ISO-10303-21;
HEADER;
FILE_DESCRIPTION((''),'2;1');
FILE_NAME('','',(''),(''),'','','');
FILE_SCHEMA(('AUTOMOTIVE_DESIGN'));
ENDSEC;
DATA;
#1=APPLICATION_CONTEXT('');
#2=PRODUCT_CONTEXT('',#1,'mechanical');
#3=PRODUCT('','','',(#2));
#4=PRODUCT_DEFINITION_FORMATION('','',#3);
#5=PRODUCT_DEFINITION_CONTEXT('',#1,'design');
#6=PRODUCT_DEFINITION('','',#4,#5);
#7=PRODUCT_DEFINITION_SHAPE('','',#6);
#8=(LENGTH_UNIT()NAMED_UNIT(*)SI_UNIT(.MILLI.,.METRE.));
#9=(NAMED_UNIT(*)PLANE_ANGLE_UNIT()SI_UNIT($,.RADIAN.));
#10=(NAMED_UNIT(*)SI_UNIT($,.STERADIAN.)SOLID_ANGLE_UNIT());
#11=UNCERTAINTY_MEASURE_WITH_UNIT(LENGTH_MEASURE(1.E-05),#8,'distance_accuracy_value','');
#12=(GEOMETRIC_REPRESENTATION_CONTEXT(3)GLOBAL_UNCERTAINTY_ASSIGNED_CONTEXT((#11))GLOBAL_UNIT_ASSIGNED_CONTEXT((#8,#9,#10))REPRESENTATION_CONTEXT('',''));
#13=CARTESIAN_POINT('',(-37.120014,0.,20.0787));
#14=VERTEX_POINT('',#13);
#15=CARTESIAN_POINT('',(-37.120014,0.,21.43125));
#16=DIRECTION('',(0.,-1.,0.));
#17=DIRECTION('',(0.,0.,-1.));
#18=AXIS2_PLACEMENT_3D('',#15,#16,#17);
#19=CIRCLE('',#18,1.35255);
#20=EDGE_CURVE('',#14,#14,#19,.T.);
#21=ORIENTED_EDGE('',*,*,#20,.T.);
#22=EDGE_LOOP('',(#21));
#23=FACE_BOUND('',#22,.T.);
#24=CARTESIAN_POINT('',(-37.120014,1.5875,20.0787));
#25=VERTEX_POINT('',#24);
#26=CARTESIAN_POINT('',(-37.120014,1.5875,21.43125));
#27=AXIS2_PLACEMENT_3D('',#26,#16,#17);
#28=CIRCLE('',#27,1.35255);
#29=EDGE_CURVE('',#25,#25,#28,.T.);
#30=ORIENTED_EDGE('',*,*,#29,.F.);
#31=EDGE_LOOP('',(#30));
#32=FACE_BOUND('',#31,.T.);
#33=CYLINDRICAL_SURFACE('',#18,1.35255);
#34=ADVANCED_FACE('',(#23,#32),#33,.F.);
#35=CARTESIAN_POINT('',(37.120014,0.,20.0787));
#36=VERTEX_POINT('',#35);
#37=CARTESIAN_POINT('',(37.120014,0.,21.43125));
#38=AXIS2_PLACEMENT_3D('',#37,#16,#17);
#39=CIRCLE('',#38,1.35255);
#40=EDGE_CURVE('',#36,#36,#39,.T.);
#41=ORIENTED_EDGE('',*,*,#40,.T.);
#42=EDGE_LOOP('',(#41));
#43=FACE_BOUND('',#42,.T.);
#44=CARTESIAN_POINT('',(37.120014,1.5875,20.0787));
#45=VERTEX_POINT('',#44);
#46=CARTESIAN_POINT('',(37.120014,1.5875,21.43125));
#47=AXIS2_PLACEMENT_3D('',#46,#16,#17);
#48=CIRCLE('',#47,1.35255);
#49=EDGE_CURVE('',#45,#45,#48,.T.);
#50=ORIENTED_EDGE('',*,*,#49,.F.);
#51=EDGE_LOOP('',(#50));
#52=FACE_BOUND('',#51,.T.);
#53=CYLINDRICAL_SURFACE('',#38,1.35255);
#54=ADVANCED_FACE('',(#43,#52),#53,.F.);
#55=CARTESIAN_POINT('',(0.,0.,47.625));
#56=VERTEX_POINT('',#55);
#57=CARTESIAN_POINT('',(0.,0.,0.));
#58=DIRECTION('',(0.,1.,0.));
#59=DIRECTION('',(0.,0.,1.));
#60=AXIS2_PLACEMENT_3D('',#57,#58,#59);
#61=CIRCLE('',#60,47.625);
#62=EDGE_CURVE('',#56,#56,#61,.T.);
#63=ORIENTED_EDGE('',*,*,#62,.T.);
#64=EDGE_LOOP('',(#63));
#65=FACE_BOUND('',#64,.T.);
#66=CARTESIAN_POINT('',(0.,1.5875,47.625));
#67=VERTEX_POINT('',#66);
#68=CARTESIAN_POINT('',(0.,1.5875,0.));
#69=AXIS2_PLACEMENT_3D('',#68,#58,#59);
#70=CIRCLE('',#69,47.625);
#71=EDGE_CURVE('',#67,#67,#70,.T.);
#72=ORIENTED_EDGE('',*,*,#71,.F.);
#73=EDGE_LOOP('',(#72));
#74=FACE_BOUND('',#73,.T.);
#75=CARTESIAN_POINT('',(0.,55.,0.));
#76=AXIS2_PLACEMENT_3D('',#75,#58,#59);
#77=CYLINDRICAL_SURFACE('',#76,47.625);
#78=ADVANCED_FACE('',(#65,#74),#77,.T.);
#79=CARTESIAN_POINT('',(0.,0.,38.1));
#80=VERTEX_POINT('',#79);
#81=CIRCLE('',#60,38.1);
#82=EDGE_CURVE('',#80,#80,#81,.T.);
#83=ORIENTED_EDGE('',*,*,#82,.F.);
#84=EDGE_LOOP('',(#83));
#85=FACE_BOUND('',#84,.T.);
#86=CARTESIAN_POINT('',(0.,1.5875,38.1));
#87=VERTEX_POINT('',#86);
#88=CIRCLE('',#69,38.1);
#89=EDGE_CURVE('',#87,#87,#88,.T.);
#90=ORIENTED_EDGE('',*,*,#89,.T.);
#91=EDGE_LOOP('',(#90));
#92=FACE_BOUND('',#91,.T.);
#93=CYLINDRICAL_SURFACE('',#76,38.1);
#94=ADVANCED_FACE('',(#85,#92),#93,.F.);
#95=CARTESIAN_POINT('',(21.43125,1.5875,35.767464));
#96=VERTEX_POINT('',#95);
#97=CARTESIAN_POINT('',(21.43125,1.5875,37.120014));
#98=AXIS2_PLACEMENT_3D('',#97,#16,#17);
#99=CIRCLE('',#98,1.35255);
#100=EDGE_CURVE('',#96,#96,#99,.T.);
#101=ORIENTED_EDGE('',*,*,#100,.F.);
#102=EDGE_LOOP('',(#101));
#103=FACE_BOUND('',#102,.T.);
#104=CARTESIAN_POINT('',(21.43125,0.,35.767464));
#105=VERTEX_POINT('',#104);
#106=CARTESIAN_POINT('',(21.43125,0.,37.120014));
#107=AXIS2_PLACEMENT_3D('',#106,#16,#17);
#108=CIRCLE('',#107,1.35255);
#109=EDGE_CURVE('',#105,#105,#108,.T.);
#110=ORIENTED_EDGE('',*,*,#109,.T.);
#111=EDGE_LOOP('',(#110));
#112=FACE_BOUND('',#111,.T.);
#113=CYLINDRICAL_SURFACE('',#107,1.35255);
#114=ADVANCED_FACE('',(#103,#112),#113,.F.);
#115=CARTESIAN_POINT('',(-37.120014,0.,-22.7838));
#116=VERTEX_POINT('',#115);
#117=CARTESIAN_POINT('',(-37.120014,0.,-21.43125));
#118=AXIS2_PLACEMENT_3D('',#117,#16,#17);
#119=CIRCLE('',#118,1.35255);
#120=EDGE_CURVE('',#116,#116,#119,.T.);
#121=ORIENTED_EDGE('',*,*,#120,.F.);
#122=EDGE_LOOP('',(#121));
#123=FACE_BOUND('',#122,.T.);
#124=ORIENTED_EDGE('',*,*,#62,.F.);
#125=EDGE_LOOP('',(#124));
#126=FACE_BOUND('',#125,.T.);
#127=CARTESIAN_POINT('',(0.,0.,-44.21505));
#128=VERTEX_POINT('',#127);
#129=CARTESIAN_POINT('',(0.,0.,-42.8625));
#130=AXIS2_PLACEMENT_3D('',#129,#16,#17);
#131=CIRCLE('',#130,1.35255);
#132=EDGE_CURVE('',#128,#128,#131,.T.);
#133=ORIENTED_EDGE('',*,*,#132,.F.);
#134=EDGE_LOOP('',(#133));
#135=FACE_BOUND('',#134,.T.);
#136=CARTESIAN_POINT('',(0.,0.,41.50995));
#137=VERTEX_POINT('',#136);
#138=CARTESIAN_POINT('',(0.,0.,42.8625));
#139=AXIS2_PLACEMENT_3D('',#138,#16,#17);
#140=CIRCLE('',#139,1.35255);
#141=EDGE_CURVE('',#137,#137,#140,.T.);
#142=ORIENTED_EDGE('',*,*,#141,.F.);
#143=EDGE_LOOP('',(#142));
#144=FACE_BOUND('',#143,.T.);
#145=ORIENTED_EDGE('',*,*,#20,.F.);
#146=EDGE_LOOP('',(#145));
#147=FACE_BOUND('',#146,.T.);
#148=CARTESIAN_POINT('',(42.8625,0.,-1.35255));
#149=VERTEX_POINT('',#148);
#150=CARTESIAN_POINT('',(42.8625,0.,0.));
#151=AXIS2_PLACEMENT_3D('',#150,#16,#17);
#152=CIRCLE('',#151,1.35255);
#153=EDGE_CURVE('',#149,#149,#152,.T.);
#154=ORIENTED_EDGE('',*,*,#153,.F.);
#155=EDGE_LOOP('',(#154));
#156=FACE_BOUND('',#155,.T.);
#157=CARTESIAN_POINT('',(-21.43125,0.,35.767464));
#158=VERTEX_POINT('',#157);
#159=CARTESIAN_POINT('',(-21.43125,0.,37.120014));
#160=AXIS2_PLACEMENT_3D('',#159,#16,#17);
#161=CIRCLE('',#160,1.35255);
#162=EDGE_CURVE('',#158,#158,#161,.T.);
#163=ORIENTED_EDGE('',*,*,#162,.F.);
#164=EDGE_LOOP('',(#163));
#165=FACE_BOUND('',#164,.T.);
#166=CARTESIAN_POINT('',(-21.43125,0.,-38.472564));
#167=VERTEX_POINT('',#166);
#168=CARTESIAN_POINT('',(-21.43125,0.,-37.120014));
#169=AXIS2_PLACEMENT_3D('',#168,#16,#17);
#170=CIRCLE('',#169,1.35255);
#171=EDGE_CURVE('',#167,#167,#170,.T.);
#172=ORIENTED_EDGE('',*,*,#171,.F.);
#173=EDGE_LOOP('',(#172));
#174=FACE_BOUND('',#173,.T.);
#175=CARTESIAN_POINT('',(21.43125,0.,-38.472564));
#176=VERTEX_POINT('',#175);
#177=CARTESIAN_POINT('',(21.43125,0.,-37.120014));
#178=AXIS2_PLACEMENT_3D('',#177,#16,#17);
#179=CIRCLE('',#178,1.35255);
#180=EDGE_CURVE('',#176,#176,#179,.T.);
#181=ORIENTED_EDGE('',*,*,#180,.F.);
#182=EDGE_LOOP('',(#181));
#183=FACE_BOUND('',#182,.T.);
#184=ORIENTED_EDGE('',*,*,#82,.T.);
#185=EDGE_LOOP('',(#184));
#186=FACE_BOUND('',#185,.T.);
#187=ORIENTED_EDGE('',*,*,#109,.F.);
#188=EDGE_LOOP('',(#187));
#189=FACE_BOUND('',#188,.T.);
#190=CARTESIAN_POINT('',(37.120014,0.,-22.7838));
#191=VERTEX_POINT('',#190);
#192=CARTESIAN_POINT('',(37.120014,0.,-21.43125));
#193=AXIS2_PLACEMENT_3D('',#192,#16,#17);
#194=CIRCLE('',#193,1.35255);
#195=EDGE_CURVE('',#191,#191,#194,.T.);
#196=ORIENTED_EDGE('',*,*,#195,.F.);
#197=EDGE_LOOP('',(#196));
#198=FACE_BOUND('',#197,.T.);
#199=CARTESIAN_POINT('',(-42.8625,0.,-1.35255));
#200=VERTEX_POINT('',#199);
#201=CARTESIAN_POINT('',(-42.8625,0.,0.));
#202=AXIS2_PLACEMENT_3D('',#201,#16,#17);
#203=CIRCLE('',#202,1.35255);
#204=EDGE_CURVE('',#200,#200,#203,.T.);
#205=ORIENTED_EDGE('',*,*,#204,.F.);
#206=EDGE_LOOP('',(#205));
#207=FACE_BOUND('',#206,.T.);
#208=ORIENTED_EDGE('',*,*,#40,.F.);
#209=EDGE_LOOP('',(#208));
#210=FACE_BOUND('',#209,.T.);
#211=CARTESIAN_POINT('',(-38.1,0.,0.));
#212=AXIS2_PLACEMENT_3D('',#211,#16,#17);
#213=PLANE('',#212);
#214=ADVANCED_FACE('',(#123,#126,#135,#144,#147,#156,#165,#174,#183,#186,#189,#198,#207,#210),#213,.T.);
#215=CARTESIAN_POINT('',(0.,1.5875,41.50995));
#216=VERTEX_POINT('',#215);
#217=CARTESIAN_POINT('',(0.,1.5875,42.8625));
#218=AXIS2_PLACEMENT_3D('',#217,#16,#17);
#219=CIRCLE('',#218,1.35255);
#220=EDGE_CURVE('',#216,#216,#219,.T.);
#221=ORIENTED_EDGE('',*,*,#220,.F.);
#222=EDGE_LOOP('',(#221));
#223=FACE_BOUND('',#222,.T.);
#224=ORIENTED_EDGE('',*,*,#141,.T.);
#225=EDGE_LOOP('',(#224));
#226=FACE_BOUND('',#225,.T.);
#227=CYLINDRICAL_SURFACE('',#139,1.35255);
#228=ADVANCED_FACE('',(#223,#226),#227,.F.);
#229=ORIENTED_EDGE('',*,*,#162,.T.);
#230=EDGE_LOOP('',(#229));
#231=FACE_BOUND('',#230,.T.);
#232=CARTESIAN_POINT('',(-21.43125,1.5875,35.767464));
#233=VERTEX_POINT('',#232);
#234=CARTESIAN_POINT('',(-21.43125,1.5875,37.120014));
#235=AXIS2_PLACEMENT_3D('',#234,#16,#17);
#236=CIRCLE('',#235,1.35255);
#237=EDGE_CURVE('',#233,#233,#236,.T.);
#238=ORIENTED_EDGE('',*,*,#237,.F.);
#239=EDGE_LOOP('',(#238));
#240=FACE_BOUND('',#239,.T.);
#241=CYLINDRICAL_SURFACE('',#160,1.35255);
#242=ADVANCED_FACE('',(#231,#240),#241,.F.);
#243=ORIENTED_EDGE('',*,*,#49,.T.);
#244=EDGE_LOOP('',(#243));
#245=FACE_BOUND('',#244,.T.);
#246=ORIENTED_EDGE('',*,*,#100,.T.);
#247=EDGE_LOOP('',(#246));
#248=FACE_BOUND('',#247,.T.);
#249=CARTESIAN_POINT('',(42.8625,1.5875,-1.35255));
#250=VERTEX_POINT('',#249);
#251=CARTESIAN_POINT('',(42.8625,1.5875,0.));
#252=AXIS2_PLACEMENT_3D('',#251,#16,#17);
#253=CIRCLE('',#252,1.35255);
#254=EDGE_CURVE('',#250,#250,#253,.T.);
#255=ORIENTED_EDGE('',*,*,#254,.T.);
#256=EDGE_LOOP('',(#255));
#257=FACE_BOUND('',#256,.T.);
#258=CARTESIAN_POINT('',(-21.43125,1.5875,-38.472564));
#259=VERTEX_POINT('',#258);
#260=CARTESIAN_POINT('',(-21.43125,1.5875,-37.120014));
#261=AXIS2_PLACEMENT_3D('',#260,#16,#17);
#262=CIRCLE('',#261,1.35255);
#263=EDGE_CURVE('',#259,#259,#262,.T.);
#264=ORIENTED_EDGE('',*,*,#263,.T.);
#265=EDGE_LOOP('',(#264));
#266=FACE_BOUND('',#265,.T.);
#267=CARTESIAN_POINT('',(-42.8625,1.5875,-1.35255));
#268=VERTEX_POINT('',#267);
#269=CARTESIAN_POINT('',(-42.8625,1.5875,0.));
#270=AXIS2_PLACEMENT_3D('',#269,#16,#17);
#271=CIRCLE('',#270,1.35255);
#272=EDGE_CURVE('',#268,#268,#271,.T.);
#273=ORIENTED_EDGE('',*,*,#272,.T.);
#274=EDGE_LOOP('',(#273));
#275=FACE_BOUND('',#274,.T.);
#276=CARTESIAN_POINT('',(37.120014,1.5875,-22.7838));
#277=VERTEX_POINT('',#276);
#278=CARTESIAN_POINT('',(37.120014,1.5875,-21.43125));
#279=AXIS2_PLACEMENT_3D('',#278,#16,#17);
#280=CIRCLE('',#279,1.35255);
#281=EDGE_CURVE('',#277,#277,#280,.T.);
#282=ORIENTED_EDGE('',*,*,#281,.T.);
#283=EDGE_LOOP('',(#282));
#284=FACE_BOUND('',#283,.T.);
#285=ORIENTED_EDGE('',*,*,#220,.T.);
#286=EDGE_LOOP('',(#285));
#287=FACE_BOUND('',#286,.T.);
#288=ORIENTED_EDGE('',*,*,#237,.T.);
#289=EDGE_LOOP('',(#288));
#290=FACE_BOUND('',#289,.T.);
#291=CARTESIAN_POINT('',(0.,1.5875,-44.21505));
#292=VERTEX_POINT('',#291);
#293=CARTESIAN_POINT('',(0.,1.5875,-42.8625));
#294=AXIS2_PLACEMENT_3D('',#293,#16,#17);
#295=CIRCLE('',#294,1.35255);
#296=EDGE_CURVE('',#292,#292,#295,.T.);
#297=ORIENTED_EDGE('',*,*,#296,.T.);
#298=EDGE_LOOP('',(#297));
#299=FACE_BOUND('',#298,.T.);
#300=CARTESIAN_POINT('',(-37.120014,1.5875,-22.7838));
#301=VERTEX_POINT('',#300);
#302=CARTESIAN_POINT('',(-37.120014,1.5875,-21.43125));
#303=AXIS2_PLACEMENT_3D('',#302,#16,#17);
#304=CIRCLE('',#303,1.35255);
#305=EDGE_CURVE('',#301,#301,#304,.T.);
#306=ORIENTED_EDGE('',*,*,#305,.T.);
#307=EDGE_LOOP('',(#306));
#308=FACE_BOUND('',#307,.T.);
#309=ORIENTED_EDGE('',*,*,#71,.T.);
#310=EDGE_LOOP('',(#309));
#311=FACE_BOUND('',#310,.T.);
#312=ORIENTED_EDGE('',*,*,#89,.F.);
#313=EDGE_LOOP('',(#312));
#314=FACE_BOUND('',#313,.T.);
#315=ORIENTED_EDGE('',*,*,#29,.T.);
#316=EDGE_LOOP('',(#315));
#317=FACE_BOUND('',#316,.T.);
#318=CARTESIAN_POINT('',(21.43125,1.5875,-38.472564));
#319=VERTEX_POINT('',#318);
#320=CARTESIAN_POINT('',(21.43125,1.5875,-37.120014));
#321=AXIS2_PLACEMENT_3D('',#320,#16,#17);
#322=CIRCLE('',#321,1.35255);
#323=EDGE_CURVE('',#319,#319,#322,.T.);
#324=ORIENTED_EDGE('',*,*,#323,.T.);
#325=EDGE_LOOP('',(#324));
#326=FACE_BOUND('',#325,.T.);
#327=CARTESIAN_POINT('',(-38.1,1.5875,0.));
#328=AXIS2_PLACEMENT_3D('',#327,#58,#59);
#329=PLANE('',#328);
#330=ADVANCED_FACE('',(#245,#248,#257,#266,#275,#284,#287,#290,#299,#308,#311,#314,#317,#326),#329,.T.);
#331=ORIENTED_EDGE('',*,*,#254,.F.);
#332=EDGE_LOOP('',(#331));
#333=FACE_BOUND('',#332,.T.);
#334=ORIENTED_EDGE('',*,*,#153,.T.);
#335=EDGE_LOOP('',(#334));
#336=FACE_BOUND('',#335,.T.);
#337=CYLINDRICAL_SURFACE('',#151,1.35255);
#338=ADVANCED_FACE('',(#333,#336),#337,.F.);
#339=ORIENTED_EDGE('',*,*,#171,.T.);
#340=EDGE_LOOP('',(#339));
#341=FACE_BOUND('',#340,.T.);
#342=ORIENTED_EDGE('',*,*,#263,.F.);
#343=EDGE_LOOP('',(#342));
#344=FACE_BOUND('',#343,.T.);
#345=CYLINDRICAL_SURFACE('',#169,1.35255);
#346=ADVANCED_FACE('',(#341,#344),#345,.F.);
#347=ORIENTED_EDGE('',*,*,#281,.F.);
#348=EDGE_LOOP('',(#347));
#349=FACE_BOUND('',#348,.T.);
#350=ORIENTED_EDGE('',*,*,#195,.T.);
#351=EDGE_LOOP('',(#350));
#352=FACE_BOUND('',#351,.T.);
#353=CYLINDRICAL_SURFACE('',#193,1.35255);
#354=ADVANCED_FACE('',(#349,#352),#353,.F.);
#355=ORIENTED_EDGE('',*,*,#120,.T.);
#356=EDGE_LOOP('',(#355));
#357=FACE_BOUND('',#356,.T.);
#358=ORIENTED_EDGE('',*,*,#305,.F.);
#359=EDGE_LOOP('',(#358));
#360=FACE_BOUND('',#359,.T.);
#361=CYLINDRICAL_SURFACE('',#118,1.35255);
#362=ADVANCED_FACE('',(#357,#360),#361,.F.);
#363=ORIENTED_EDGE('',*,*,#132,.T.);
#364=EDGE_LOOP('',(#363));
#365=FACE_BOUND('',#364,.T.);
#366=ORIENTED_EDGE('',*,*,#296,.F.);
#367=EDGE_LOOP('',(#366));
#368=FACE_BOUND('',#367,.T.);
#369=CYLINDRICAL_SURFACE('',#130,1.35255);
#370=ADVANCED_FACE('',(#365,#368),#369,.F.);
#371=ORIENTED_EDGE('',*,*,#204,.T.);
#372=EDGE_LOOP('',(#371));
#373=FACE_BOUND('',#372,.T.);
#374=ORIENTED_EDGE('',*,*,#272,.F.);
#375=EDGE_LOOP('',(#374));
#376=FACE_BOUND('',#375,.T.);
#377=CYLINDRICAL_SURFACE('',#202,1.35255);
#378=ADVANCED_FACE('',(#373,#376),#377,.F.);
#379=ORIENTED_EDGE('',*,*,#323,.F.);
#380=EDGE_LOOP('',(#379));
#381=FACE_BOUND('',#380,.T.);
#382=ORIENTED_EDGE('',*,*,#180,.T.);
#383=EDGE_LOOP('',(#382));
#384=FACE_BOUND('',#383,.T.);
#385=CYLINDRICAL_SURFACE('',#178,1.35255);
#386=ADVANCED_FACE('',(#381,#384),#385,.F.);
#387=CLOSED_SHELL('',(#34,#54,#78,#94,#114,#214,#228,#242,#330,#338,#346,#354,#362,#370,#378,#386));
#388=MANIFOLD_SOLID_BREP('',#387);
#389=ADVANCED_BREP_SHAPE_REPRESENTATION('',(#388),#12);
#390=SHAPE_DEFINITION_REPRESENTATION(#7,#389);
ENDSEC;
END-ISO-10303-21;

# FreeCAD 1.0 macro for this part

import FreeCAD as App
import Part
import Sketcher
Q = App.Units.Quantity

doc = App.newDocument("Part")
params = doc.addObject("Spreadsheet::Sheet", "Params")
for row, (alias, value) in enumerate([
    ("sketch1_width", "0.375 in"),
    ("sketch1_height", "0.0625 in"),
    ("revolution_angle", "360 deg"),
    ("hole_diameter", "0.1065 in"),
], start=1):
    params.set(f"A{row}", alias)
    params.set(f"B{row}", "=" + value)
    params.setAlias(f"B{row}", alias)

body = doc.addObject("PartDesign::Body", "Body")

# Sketch on XY plane
sketch1 = body.newObject("Sketcher::SketchObject", "Sketch")
sketch1.AttachmentSupport = (doc.getObject("XY_Plane"), [""])
sketch1.MapMode = "FlatFace"
sketch1.addGeometry([
    Part.LineSegment(App.Vector(-47.625, 1.5875, 0), App.Vector(-47.625, 0, 0)),
    Part.LineSegment(App.Vector(-47.625, 0, 0), App.Vector(-38.1, 0, 0)),
    Part.LineSegment(App.Vector(-38.1, 0, 0), App.Vector(-38.1, 1.5875, 0)),
    Part.LineSegment(App.Vector(-38.1, 1.5875, 0), App.Vector(-47.625, 1.5875, 0)),
], False)
sketch1.addConstraint([
    Sketcher.Constraint("Coincident", 0, 2, 1, 1),
    Sketcher.Constraint("Coincident", 1, 2, 2, 1),
    Sketcher.Constraint("Coincident", 2, 2, 3, 1),
    Sketcher.Constraint("Coincident", 3, 2, 0, 1),
    Sketcher.Constraint("Vertical", 0),
    Sketcher.Constraint("Horizontal", 1),
    Sketcher.Constraint("Vertical", 2),
    Sketcher.Constraint("Horizontal", 3),
    Sketcher.Constraint("PointOnObject", 0, 2, -1),
    Sketcher.Constraint("DistanceX", 1, 2, -1, 1, Q("1.5 in")),
    Sketcher.Constraint("DistanceX", 1, 1, 1, 2, Q("0.375 in")),
    Sketcher.Constraint("DistanceY", 0, 2, 0, 1, Q("0.0625 in")),
])
sketch1.setExpression("Constraints[10]", "Params.sketch1_width")
sketch1.setExpression("Constraints[11]", "Params.sketch1_height")
revolution = body.newObject("PartDesign::Revolution", "Revolution")
revolution.Profile = sketch1
revolution.ReferenceAxis = (sketch1, ["V_Axis"])
revolution.setExpression("Angle", "Params.revolution_angle")

# Sketch on XZ plane
sketch2 = body.newObject("Sketcher::SketchObject", "Sketch001")
sketch2.AttachmentSupport = (doc.getObject("XZ_Plane"), [""])
sketch2.MapMode = "FlatFace"
sketch2.addGeometry(Part.Circle(App.Vector(-42.8625, 0, 0), App.Vector(0, 0, 1), 1.35255), False)
sketch2.addConstraint([
    Sketcher.Constraint("PointOnObject", 0, 3, -1),
    Sketcher.Constraint("Diameter", 0, Q("0.1065 in")),
    Sketcher.Constraint("DistanceX", 0, 3, -1, 1, Q("1.6875 in")),
])
doc.recompute()
hole = body.newObject("PartDesign::Hole", "Hole")
hole.Profile = sketch2
hole.ThreadType = "None"
hole.setExpression("Diameter", "Params.hole_diameter")
hole.DepthType = "ThroughAll"
doc.recompute()

polarpattern = body.newObject("PartDesign::PolarPattern", "PolarPattern")
polarpattern.Originals = [hole]
polarpattern.Axis = (doc.getObject("Y_Axis"), [""])
polarpattern.Angle = 360
polarpattern.Occurrences = 12
body.Tip = polarpattern

doc.recompute()
